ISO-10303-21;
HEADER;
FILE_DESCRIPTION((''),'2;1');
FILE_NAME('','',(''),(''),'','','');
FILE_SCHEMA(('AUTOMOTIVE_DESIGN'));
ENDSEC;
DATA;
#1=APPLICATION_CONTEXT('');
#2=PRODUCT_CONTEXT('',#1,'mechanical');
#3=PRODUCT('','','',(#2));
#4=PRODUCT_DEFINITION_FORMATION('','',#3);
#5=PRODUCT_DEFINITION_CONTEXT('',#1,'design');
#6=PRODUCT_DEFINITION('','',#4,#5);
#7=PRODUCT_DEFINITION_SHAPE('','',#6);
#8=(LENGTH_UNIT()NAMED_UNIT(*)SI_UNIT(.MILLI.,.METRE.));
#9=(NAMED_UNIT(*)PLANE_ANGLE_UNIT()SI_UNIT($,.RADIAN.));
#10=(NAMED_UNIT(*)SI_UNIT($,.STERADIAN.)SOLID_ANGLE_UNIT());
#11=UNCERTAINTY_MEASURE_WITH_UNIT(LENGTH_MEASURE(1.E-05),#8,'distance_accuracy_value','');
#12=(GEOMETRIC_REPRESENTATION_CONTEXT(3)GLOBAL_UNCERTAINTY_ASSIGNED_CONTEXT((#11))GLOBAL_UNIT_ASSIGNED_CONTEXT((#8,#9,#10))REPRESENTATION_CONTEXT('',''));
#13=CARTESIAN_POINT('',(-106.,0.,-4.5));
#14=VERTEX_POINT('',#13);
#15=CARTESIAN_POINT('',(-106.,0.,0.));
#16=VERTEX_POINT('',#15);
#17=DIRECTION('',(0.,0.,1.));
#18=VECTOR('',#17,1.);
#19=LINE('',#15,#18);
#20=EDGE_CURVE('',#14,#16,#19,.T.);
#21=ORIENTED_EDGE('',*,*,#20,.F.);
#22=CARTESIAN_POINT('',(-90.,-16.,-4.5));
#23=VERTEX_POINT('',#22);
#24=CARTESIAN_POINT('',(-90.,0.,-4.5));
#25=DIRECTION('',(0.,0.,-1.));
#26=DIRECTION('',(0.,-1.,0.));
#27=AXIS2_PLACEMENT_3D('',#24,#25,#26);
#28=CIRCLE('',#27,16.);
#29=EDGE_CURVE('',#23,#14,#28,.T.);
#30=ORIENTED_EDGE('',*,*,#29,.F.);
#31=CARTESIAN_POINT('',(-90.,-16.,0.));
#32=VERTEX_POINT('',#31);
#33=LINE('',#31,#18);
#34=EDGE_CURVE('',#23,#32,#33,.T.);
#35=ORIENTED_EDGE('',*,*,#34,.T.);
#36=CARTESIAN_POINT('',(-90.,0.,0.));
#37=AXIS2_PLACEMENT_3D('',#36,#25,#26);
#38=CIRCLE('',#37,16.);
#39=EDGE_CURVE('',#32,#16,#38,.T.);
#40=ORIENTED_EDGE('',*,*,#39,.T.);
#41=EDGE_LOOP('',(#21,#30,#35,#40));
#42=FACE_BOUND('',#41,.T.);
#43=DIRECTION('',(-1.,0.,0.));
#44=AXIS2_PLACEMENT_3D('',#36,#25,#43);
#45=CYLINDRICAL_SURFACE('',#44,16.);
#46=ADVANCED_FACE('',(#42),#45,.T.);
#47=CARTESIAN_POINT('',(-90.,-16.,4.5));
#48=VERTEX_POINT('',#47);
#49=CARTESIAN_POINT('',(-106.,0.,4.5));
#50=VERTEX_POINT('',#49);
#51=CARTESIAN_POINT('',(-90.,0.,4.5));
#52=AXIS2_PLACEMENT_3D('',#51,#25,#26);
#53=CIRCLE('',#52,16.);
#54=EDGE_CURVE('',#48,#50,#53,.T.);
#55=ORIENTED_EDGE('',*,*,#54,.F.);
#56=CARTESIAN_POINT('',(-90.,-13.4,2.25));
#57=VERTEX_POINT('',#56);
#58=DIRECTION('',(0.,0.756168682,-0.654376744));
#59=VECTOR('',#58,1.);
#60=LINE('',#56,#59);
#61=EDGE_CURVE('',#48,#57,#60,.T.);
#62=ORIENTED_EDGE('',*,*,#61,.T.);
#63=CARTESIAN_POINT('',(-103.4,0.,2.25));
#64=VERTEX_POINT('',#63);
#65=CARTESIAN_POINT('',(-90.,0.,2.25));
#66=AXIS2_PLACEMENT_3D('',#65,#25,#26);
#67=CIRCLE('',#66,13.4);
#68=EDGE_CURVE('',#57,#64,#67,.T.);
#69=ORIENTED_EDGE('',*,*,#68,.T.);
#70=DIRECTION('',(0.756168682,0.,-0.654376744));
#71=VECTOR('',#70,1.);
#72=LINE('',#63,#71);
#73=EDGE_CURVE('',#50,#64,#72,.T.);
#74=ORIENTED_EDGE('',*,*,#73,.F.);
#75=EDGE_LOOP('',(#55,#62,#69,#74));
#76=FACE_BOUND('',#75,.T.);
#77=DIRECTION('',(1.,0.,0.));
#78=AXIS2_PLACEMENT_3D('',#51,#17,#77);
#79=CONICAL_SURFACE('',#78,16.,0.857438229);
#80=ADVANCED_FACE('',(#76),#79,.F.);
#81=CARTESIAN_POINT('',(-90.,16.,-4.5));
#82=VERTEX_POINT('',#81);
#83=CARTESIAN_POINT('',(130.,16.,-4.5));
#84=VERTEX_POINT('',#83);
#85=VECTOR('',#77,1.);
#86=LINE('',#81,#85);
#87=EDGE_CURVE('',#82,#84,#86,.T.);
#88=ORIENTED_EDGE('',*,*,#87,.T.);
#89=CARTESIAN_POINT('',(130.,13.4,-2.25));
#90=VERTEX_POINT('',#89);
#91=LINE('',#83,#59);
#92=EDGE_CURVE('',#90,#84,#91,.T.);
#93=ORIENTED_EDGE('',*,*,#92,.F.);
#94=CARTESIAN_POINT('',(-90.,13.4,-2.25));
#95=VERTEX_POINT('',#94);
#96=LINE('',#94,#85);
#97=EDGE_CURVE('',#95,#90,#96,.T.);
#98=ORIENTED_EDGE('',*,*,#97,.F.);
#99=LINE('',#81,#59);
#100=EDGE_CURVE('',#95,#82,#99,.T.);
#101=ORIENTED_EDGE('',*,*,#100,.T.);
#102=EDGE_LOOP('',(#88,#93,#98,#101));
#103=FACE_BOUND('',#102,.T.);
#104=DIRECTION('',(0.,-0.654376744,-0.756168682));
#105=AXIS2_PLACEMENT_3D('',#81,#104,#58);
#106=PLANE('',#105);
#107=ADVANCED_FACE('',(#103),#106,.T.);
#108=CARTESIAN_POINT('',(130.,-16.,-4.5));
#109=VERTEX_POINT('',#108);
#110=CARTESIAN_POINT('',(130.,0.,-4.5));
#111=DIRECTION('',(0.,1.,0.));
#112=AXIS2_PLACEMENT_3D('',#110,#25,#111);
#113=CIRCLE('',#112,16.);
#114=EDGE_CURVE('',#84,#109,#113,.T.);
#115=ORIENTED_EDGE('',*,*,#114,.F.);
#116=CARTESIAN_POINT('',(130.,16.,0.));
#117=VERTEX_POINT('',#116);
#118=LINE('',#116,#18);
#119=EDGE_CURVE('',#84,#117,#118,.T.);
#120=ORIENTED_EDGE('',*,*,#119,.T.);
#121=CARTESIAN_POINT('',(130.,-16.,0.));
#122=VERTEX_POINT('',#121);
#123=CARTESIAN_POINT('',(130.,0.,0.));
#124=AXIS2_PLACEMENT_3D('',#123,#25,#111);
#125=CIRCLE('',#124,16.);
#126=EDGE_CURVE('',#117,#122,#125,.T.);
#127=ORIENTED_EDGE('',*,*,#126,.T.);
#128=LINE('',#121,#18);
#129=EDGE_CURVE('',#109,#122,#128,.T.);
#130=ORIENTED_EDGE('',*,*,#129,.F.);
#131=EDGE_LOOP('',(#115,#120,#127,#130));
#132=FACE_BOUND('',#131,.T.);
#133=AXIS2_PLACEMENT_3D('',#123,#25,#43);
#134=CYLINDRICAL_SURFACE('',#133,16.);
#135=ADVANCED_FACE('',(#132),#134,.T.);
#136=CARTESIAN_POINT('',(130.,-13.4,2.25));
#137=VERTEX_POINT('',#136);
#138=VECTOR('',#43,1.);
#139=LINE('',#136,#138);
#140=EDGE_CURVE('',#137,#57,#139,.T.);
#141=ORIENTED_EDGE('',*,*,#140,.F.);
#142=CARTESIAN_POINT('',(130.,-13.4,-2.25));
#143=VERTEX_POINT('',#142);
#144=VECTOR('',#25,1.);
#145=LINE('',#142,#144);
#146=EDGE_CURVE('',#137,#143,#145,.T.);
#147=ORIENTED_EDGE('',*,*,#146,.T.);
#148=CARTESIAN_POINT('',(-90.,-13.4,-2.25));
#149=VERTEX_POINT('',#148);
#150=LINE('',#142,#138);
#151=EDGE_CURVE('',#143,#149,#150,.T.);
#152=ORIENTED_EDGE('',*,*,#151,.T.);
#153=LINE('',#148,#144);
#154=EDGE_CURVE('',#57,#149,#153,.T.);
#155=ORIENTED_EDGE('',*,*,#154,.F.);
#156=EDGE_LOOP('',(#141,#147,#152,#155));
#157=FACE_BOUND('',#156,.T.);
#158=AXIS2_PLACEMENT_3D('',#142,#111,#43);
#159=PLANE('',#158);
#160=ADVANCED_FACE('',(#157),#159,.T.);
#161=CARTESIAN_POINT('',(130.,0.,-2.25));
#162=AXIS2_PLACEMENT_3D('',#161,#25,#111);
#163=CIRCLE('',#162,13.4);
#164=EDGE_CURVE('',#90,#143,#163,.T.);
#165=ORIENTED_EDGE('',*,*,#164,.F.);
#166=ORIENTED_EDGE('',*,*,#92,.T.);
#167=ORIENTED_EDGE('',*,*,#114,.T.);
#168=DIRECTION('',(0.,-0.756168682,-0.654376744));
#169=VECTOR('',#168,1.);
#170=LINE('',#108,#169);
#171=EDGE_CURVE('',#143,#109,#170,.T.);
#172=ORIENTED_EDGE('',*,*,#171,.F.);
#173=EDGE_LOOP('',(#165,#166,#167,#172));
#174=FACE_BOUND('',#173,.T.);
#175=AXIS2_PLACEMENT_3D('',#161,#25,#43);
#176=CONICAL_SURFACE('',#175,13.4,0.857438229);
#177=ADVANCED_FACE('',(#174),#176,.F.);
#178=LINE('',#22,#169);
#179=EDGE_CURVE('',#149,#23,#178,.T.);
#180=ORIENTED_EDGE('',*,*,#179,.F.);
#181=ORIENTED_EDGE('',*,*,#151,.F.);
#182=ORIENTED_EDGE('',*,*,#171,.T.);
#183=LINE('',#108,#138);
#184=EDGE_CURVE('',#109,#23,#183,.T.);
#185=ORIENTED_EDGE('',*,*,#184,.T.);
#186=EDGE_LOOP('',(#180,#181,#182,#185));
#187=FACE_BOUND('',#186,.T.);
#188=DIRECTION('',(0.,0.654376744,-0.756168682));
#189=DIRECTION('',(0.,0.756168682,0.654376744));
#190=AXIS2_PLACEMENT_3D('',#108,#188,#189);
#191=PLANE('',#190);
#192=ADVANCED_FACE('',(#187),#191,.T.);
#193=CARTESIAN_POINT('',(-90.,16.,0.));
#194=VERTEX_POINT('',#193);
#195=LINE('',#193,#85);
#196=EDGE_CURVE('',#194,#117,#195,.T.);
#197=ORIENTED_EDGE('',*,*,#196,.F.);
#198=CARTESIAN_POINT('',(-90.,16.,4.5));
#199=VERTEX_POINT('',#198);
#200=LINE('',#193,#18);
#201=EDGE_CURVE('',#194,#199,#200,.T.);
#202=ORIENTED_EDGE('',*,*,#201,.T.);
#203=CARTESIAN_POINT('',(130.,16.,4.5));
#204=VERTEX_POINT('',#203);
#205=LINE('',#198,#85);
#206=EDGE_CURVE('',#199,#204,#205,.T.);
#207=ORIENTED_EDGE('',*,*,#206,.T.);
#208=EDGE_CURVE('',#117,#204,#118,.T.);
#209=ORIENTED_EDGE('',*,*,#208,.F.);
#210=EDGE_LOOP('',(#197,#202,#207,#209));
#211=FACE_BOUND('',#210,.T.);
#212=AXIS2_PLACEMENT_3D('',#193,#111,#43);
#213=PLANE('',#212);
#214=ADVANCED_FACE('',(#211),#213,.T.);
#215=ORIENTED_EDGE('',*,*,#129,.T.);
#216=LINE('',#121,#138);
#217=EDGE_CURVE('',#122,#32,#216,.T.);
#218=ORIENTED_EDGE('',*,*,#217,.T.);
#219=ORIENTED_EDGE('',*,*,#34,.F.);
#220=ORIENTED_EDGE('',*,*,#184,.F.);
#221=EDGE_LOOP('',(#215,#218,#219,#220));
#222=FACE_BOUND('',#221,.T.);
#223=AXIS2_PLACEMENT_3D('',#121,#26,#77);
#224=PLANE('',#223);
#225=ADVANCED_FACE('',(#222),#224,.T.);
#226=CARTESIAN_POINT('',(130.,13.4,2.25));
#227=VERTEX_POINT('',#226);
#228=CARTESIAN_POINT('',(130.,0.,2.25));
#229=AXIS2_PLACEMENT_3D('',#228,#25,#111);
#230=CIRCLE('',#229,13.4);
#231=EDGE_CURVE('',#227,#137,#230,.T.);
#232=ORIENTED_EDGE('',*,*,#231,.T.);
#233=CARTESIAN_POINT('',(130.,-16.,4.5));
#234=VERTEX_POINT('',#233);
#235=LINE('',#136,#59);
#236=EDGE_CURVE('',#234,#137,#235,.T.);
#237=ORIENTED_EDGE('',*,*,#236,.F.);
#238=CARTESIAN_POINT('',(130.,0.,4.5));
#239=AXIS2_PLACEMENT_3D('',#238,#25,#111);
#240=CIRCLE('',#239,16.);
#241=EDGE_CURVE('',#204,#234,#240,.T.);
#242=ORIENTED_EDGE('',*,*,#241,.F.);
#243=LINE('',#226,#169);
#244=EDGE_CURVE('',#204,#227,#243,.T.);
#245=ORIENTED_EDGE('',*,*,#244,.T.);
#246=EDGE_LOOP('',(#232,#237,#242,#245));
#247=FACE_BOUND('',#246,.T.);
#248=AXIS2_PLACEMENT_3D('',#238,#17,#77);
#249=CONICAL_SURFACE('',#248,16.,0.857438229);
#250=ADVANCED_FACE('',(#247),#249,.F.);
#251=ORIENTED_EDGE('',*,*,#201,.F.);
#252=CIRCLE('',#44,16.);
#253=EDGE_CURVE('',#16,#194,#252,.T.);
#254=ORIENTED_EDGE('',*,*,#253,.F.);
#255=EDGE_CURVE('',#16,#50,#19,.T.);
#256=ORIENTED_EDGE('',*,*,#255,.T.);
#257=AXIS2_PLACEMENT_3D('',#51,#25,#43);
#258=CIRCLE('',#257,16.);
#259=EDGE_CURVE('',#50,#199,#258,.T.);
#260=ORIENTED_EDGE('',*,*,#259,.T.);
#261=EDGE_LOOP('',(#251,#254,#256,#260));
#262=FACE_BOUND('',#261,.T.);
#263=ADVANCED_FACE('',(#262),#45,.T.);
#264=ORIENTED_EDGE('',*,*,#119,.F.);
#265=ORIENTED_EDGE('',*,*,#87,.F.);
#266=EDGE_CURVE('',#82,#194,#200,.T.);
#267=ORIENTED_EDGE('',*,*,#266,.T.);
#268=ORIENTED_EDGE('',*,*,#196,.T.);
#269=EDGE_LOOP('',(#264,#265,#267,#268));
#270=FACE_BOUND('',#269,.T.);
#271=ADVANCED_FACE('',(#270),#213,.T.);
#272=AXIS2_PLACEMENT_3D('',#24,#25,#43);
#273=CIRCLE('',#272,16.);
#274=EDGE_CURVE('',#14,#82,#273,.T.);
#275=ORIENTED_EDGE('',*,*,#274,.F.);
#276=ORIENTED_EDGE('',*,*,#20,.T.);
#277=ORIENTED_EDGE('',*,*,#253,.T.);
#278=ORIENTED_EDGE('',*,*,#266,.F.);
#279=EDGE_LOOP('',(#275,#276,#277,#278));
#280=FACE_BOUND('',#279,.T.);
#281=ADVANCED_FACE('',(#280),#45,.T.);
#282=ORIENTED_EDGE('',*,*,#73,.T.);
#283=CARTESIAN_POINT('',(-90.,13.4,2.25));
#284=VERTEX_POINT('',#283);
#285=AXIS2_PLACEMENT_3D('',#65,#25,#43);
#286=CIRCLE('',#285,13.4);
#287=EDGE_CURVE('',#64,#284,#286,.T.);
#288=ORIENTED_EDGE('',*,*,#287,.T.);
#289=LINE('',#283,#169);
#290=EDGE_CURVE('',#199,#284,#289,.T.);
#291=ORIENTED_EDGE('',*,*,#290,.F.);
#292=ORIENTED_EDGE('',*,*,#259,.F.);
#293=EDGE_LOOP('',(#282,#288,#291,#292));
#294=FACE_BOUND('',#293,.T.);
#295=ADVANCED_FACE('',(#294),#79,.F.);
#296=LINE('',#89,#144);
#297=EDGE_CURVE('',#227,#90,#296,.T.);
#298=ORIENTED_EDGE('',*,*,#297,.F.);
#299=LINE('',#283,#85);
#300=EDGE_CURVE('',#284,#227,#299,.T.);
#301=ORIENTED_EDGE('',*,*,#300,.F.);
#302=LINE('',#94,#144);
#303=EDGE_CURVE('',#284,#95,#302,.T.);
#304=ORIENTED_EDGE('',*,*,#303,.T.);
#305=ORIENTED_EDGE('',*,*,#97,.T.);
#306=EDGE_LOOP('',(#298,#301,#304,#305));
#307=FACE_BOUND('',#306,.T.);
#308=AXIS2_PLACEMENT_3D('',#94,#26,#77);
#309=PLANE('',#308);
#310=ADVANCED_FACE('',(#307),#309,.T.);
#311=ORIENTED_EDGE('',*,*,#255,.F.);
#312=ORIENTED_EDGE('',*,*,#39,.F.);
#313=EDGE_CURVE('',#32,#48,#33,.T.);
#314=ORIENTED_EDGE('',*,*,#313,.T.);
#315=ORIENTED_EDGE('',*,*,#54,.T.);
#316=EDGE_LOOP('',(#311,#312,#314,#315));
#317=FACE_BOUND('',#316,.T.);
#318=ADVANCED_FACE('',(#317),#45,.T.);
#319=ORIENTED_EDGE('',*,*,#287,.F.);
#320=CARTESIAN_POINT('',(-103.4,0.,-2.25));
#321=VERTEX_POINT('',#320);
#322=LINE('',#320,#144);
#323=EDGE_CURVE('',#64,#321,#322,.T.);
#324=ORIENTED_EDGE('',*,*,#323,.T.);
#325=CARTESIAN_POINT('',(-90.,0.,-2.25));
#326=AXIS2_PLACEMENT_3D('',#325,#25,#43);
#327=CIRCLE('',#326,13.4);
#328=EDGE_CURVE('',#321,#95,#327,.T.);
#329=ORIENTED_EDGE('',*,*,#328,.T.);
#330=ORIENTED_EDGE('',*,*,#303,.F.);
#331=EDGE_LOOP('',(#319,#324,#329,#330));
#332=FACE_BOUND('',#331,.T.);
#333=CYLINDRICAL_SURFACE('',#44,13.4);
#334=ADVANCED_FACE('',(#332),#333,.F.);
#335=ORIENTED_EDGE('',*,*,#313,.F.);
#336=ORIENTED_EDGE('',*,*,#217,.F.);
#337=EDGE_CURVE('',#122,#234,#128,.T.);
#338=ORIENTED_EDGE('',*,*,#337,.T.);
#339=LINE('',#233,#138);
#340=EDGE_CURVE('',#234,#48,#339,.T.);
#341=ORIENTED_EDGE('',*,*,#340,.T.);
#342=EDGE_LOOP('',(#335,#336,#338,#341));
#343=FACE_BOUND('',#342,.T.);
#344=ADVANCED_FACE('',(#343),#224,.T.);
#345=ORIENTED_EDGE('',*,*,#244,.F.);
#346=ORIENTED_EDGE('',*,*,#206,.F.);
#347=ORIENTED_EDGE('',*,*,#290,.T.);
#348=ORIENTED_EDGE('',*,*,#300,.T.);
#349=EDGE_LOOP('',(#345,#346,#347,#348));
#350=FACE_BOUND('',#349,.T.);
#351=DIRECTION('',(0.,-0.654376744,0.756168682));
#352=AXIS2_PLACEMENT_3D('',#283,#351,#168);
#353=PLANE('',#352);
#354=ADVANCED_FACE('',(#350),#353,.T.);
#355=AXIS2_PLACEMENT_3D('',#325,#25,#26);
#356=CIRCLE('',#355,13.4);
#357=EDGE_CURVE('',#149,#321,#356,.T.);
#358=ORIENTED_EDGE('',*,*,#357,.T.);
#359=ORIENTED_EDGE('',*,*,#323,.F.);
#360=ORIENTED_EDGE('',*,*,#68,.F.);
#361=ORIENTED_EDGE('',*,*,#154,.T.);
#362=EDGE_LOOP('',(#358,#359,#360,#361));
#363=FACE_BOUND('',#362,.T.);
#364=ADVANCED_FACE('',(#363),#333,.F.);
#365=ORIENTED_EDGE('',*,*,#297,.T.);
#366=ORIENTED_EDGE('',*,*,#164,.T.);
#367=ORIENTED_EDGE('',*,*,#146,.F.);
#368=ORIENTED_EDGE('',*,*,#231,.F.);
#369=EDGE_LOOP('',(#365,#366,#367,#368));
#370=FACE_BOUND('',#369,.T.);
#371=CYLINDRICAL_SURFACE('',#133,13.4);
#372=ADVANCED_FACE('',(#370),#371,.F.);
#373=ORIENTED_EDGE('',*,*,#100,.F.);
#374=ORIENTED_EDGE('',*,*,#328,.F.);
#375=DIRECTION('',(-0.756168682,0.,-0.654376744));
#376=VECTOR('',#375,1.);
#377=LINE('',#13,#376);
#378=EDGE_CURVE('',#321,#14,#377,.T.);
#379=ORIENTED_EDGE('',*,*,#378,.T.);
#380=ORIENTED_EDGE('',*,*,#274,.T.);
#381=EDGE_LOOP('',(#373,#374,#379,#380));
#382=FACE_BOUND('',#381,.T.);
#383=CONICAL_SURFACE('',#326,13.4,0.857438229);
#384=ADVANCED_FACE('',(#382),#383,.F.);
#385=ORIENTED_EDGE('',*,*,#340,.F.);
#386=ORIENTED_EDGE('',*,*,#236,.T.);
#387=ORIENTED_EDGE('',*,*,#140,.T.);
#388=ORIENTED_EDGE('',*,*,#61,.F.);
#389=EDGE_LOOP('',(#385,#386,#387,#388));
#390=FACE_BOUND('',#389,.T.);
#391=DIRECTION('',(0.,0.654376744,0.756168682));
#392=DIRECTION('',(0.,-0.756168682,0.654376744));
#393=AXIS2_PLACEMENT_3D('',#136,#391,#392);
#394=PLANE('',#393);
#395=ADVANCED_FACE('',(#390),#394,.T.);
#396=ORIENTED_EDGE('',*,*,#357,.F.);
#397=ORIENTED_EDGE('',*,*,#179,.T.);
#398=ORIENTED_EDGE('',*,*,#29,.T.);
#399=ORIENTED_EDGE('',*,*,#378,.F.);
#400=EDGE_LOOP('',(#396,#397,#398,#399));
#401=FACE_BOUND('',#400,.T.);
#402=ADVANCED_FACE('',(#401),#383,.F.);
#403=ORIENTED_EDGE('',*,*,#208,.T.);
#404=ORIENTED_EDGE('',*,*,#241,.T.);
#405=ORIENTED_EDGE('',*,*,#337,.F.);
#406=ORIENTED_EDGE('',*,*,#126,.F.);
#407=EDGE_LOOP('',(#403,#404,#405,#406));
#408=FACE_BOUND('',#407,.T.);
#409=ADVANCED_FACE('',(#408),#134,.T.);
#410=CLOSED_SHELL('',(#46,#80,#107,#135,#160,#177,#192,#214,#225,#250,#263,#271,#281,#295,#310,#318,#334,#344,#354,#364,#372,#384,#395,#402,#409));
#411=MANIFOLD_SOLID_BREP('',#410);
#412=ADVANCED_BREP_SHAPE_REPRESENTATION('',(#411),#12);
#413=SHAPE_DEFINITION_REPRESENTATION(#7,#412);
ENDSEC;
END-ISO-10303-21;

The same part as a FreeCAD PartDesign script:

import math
import FreeCAD as App
import Part
import Sketcher
Q = App.Units.Quantity

doc = App.newDocument("Part")
body = doc.addObject("PartDesign::Body", "Body")

# Sketch on XZ plane
sketch1 = body.newObject("Sketcher::SketchObject", "Sketch")
sketch1.AttachmentSupport = (doc.getObject("XZ_Plane"), [""])
sketch1.MapMode = "FlatFace"
sketch1.addGeometry([
    Part.LineSegment(App.Vector(-106, -4.5, 0), App.Vector(-106, 4.5, 0)),
    Part.LineSegment(App.Vector(-106, 4.5, 0), App.Vector(-103.4, 2.25, 0)),
    Part.LineSegment(App.Vector(-103.4, 2.25, 0), App.Vector(-103.4, -2.25, 0)),
    Part.LineSegment(App.Vector(-103.4, -2.25, 0), App.Vector(-106, -4.5, 0)),
], False)
sketch1.addConstraint([
    Sketcher.Constraint("Coincident", 0, 2, 1, 1),
    Sketcher.Constraint("Coincident", 1, 2, 2, 1),
    Sketcher.Constraint("Coincident", 2, 2, 3, 1),
    Sketcher.Constraint("Coincident", 3, 2, 0, 1),
    Sketcher.Constraint("Vertical", 0),
    Sketcher.Constraint("Vertical", 2),
    Sketcher.Constraint("Equal", 1, 3),
    Sketcher.Constraint("DistanceY", 0, 1, 0, 2, Q("9 mm")),
    Sketcher.Constraint("DistanceY", 2, 2, 2, 1, Q("4.5 mm")),
    Sketcher.Constraint("DistanceX", 0, 2, -1, 1, Q("106 mm")),
    Sketcher.Constraint("DistanceY", -1, 1, 0, 2, Q("4.5 mm")),
    Sketcher.Constraint("DistanceX", 1, 2, -1, 1, Q("103.4 mm")),
])

# Sketch on XY plane
sketch2 = body.newObject("Sketcher::SketchObject", "Sketch001")
sketch2.AttachmentSupport = (doc.getObject("XY_Plane"), [""])
sketch2.MapMode = "FlatFace"
sketch2.addGeometry([
    Part.LineSegment(App.Vector(-90, 16, 0), App.Vector(130, 16, 0)),
    Part.ArcOfCircle(Part.Circle(App.Vector(130, 0, 0), App.Vector(0, 0, 1), 16), math.radians(-90), math.radians(90)),
    Part.LineSegment(App.Vector(130, -16, 0), App.Vector(-90, -16, 0)),
    Part.ArcOfCircle(Part.Circle(App.Vector(-90, 0, 0), App.Vector(0, 0, 1), 16), math.radians(90), math.radians(270)),
], False)
sketch2.addConstraint([
    Sketcher.Constraint("Tangent", 0, 2, 1, 2),
    Sketcher.Constraint("Tangent", 1, 1, 2, 1),
    Sketcher.Constraint("Tangent", 2, 2, 3, 2),
    Sketcher.Constraint("Tangent", 3, 1, 0, 1),
    Sketcher.Constraint("Horizontal", 0),
    Sketcher.Constraint("Horizontal", 2),
    Sketcher.Constraint("PointOnObject", 1, 3, -1),
    Sketcher.Constraint("Radius", 1, Q("16 mm")),
    Sketcher.Constraint("DistanceX", 0, 1, 0, 2, Q("220 mm")),
    Sketcher.Constraint("DistanceX", -1, 1, 1, 3, Q("130 mm")),
])
doc.recompute()

additivepipe = body.newObject("PartDesign::AdditivePipe", "AdditivePipe")
additivepipe.Profile = sketch1
additivepipe.Spine = (sketch2, ["Edge1", "Edge2", "Edge3", "Edge4"])

doc.recompute()
